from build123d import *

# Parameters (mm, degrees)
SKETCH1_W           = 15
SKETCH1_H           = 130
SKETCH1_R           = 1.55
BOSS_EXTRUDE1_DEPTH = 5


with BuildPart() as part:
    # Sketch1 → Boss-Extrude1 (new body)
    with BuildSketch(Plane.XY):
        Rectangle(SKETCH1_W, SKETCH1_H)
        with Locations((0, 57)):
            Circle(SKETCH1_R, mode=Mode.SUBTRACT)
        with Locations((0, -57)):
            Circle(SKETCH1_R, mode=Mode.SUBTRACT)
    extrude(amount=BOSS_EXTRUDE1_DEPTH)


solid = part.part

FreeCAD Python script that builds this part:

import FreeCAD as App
import Part
import Sketcher


def add_polygon(sketch, points):
    """Adds a closed chain of lines whose ends are joined by coincident constraints."""
    first, n = sketch.GeometryCount, len(points)
    for a, b in zip(points, points[1:] + points[:1]):
        sketch.addGeometry(Part.LineSegment(App.Vector(*a, 0), App.Vector(*b, 0)), False)
    for i in range(n):
        sketch.addConstraint(Sketcher.Constraint("Coincident", first + i, 2, first + (i + 1) % n, 1))

doc = App.newDocument("Part")
params = doc.addObject("Spreadsheet::Sheet", "Params")
for row, (alias, value) in enumerate([
    ("sketch1_diameter", "3.1 mm"),
    ("sketch1_width", "15 mm"),
    ("sketch1_height", "130 mm"),
    ("pad1_length", "5 mm"),
], start=1):
    params.set(f"A{row}", alias)
    params.set(f"B{row}", "=" + value)
    params.setAlias(f"B{row}", alias)

body = doc.addObject("PartDesign::Body", "Body")

# Sketch on XY plane
sketch1 = body.newObject("Sketcher::SketchObject", "Sketch")
sketch1.AttachmentSupport = (doc.getObject("XY_Plane"), [""])
sketch1.MapMode = "FlatFace"
add_polygon(sketch1, [(-7.5, 65), (-7.5, -65), (7.5, -65), (7.5, 65)])  # lines 0-3
sketch1.addGeometry(Part.Circle(App.Vector(0, -57, 0), App.Vector(0, 0, 1), 1.6), False)  # 4
sketch1.addGeometry(Part.Circle(App.Vector(0, 57, 0), App.Vector(0, 0, 1), 1.6), False)  # 5
sketch1.addConstraint([
    Sketcher.Constraint("Vertical", 0),
    Sketcher.Constraint("Horizontal", 1),
    Sketcher.Constraint("Vertical", 2),
    Sketcher.Constraint("Horizontal", 3),
    Sketcher.Constraint("Equal", 4, 5),
    Sketcher.Constraint("Symmetric", 4, 3, 5, 3, -1, 1),
    Sketcher.Constraint("Symmetric", 0, 2, 2, 2, -1, 1),
    Sketcher.Constraint("PointOnObject", 4, 3, -2),
    Sketcher.Constraint("Diameter", 4, 3.1),
    Sketcher.Constraint("DistanceX", 1, 1, 1, 2, 15.0),
    Sketcher.Constraint("DistanceY", 0, 2, 0, 1, 130.0),
    Sketcher.Constraint("DistanceY", 4, 3, -1, 1, 57.0),
])
sketch1.setExpression("Constraints[12]", "Params.sketch1_diameter")
sketch1.setExpression("Constraints[13]", "Params.sketch1_width")
sketch1.setExpression("Constraints[14]", "Params.sketch1_height")
pad1 = body.newObject("PartDesign::Pad", "Pad")
pad1.Profile = sketch1
pad1.setExpression("Length", "Params.pad1_length")

doc.recompute()
